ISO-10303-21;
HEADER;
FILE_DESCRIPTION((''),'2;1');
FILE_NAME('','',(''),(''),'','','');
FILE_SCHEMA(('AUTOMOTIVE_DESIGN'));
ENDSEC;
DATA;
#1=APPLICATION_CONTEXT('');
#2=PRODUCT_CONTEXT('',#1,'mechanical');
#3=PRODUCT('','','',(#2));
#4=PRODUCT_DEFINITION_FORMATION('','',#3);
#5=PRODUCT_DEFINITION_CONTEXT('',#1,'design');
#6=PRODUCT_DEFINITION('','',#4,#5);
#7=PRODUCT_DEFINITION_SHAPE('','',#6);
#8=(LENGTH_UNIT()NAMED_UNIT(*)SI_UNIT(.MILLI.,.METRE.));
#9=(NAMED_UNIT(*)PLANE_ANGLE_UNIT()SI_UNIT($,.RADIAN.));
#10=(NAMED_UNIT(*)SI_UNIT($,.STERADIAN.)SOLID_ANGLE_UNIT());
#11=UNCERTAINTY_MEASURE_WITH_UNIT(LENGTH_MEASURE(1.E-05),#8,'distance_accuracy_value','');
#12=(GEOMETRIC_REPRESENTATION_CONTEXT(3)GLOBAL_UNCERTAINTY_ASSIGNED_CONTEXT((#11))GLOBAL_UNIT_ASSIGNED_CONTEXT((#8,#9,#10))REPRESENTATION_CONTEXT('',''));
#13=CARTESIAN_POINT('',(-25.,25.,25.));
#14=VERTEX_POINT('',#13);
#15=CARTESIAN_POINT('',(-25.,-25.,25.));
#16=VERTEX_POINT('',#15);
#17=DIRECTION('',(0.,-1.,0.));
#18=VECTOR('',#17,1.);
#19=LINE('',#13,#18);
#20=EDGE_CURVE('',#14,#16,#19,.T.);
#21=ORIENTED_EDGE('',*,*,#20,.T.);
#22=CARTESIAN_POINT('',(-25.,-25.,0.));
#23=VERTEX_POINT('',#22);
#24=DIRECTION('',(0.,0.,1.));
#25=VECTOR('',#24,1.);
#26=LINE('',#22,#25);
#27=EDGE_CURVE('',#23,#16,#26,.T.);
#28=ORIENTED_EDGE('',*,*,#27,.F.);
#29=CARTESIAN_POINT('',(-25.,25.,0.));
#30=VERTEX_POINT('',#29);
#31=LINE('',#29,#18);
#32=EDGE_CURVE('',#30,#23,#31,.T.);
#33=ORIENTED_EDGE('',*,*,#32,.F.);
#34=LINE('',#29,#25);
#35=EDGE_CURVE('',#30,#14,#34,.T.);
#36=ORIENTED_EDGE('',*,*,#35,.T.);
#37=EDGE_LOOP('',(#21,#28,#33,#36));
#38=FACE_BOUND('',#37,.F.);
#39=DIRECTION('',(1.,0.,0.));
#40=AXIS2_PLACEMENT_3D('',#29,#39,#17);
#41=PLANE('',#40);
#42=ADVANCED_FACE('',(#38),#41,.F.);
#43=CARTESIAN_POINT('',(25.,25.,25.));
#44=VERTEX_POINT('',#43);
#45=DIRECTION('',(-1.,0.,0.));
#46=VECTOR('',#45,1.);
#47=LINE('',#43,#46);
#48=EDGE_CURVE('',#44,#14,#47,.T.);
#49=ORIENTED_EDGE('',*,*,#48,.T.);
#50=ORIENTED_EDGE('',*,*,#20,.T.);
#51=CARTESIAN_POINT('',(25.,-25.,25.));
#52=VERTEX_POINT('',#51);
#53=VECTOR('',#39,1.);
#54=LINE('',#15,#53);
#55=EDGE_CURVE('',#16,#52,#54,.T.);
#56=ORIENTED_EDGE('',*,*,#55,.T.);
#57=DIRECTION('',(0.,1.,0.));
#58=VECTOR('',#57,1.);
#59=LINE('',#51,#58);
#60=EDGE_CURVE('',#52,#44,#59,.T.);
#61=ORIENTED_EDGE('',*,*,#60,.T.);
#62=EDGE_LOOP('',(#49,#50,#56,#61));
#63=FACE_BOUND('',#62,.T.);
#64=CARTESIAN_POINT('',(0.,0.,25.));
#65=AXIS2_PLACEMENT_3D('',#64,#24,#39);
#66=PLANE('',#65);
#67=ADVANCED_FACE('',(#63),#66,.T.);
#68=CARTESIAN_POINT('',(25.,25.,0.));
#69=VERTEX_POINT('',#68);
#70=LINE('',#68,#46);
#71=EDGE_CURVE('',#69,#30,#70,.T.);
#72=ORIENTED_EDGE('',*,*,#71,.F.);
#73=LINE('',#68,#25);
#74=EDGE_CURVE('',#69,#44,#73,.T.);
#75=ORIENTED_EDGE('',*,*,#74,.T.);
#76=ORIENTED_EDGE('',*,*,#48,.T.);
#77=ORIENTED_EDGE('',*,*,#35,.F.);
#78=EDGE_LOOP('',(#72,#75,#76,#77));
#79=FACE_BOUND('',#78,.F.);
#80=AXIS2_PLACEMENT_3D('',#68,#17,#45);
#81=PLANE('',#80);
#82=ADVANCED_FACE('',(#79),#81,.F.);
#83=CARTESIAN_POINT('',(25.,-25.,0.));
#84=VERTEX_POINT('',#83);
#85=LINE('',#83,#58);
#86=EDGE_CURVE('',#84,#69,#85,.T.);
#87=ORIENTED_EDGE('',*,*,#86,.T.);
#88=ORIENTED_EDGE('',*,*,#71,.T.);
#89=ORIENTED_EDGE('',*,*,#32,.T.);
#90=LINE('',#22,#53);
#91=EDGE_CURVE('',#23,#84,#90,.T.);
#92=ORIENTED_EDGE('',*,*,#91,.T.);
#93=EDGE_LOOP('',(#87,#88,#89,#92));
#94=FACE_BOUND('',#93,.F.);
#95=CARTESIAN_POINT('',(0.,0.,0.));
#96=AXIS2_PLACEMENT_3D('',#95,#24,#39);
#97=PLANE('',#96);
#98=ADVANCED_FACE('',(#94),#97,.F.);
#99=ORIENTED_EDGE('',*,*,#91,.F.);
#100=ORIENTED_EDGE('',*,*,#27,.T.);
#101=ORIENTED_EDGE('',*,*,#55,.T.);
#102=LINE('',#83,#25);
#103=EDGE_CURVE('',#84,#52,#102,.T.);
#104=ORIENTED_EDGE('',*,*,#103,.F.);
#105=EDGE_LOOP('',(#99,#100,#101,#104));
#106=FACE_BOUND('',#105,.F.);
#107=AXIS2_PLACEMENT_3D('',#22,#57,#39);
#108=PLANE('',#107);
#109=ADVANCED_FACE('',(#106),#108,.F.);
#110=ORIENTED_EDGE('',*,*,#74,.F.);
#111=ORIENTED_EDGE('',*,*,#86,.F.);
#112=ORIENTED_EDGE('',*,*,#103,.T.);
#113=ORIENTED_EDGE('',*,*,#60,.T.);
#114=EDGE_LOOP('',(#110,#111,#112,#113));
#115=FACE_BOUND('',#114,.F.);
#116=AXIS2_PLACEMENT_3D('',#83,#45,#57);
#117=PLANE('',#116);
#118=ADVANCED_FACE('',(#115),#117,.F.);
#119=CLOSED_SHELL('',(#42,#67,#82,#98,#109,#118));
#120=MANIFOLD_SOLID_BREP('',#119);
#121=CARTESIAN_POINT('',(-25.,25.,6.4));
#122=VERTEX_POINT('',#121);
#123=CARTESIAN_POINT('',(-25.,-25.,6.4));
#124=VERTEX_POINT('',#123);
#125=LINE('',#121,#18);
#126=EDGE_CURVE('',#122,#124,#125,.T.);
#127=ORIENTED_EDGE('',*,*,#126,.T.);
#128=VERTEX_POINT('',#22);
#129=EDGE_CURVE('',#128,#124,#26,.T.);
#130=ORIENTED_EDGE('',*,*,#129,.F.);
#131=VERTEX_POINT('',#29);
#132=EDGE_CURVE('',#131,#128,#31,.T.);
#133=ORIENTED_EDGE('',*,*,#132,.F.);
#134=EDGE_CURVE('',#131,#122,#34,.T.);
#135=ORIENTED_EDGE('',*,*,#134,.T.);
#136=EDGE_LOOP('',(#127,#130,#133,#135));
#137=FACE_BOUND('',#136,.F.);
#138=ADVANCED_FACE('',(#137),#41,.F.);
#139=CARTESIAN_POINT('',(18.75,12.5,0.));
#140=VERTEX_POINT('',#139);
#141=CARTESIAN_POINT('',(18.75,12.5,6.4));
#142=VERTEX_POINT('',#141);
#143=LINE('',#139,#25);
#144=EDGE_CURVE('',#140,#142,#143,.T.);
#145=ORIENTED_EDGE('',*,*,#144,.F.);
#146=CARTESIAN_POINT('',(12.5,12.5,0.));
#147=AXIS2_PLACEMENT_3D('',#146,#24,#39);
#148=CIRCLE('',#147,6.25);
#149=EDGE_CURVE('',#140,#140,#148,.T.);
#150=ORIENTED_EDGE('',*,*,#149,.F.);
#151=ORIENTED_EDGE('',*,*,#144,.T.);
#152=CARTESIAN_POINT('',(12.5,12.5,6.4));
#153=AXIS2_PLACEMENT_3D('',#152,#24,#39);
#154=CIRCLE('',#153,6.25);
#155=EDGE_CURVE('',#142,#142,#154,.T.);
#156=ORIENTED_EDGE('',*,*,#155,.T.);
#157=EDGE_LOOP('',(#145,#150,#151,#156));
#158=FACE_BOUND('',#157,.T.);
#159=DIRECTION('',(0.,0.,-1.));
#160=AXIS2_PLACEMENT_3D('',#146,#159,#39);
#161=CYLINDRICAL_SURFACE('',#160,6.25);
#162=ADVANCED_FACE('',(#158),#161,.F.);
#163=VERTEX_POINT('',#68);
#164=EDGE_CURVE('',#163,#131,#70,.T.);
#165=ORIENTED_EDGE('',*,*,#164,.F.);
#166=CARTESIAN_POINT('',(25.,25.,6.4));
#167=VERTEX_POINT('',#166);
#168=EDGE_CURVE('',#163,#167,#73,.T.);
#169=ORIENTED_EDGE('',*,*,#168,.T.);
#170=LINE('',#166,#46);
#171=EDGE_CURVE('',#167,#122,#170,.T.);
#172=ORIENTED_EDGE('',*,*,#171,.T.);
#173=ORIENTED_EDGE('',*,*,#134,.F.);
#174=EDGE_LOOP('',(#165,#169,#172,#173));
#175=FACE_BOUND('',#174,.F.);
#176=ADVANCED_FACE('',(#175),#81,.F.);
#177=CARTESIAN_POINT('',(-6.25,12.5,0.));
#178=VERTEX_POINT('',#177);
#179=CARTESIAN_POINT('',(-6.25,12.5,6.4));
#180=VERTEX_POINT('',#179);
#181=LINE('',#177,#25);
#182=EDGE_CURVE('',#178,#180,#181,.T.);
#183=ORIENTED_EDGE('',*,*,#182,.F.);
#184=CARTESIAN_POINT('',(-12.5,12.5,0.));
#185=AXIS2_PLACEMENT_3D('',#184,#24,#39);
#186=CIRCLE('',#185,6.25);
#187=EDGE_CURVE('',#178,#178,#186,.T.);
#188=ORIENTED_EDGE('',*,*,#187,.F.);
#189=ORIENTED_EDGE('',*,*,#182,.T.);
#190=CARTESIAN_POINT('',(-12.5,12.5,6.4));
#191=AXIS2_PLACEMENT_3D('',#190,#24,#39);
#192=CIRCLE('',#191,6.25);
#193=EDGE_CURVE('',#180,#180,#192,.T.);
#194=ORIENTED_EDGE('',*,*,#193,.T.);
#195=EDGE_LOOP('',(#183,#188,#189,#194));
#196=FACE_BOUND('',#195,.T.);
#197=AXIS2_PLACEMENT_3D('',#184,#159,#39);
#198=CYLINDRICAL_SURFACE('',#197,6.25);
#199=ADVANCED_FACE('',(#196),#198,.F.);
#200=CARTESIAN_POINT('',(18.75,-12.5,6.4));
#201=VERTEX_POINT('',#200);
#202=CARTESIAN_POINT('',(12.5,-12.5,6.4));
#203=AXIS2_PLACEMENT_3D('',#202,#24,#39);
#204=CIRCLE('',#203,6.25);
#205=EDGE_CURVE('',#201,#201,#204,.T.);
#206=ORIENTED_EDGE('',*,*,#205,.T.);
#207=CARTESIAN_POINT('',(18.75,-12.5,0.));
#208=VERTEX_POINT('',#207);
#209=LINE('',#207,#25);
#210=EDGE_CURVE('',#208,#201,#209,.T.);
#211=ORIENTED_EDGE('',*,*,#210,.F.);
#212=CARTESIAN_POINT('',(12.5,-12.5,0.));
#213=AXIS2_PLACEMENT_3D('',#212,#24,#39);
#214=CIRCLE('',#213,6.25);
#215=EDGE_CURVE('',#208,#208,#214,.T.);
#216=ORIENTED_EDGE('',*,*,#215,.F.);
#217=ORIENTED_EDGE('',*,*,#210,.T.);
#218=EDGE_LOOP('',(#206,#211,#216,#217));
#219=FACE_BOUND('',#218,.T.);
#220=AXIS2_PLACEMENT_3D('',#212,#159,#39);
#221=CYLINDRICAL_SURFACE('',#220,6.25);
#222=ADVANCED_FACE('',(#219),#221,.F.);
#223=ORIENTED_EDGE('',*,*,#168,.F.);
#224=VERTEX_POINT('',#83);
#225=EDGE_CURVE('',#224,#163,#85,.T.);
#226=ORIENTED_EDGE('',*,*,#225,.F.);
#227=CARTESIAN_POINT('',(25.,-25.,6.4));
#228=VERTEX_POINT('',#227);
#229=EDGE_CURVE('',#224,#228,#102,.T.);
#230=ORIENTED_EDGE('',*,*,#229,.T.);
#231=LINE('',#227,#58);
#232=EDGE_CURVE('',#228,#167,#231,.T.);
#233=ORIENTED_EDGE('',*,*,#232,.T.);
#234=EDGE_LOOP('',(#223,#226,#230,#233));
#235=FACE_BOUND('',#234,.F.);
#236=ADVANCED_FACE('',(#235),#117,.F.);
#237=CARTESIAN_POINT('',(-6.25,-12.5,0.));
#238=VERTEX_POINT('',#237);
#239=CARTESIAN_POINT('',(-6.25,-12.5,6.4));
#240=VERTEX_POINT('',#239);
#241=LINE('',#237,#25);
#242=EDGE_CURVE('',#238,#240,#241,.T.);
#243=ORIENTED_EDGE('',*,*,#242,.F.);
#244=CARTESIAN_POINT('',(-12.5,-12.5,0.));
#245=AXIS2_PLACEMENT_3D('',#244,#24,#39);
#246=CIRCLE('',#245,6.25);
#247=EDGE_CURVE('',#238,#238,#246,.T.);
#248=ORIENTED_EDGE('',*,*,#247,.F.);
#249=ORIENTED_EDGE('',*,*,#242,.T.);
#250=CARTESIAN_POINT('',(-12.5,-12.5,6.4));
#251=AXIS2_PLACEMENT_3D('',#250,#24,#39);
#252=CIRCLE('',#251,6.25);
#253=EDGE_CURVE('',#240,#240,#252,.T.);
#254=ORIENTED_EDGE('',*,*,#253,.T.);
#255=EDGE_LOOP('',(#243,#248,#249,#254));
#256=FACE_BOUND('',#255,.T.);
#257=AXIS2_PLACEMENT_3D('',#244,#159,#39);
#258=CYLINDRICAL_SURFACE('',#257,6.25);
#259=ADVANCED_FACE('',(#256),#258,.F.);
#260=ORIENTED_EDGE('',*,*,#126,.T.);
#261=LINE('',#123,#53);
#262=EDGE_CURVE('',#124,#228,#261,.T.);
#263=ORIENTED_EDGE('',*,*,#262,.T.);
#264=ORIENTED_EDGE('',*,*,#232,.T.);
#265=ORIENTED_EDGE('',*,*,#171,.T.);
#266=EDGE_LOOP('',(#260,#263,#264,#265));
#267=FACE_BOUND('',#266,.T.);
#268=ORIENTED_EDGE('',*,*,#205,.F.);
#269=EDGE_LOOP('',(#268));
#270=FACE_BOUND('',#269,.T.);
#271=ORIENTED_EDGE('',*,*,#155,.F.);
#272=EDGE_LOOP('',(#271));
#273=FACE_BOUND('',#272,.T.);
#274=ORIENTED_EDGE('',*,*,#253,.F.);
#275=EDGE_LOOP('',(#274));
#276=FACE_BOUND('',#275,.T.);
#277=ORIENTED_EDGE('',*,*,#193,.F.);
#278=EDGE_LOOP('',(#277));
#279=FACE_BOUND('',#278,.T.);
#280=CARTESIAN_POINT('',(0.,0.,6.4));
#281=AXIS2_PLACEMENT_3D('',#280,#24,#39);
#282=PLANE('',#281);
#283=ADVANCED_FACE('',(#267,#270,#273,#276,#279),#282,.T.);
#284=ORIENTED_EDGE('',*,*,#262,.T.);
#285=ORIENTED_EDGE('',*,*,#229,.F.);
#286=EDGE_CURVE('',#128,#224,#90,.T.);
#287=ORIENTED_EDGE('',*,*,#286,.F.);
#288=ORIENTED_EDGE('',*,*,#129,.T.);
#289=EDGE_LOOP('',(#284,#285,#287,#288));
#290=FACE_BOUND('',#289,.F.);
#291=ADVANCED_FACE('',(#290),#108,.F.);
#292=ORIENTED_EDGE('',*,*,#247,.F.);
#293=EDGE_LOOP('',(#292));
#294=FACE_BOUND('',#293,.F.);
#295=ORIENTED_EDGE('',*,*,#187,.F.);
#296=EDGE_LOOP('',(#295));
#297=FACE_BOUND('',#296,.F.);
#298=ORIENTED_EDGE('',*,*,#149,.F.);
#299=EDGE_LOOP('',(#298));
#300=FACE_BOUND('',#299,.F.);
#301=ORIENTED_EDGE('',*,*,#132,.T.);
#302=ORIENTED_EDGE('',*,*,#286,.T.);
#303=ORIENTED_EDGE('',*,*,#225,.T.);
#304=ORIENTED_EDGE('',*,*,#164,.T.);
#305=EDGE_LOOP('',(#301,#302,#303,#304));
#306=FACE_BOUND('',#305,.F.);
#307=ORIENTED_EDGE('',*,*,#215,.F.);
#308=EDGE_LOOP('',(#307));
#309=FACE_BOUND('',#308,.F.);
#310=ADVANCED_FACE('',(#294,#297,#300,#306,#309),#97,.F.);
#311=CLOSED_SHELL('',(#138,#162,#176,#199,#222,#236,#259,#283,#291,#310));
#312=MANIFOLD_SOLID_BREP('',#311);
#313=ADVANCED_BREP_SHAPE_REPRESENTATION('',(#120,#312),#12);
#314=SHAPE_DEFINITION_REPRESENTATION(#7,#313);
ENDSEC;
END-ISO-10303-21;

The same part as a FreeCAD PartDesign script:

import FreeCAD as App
import Part
import Sketcher

V = App.Vector


def add_polygon(sketch, points):
    """Adds a closed chain of lines whose ends are joined by coincident constraints."""
    first, n = sketch.GeometryCount, len(points)
    for a, b in zip(points, points[1:] + points[:1]):
        sketch.addGeometry(Part.LineSegment(App.Vector(*a, 0), App.Vector(*b, 0)), False)
    for i in range(n):
        sketch.addConstraint(Sketcher.Constraint("Coincident", first + i, 2, first + (i + 1) % n, 1))

doc = App.newDocument("Part")
body = doc.addObject("PartDesign::Body", "Body")

sketch1 = body.newObject("Sketcher::SketchObject", "Sketch")
sketch1.AttachmentSupport = (doc.getObject("XY_Plane"), [""])
sketch1.MapMode = "FlatFace"
add_polygon(sketch1, [(25, 25), (-25, 25), (-25, -25), (25, -25)])
sketch1.addGeometry(Part.Circle(V(-12, -12, 0), V(0, 0, 1), 6), False)
sketch1.addGeometry(Part.Circle(V(12, -12, 0), V(0, 0, 1), 6), False)
sketch1.addGeometry(Part.Circle(V(-12, 12, 0), V(0, 0, 1), 6), False)
sketch1.addGeometry(Part.Circle(V(12, 12, 0), V(0, 0, 1), 6), False)
sketch1.addConstraint([
    Sketcher.Constraint("Horizontal", 0),
    Sketcher.Constraint("Vertical", 1),
    Sketcher.Constraint("Horizontal", 2),
    Sketcher.Constraint("Vertical", 3),
    Sketcher.Constraint("Equal", 4, 5),
    Sketcher.Constraint("Equal", 5, 6),
    Sketcher.Constraint("Equal", 6, 7),
    Sketcher.Constraint("Symmetric", 5, 3, 6, 3, -1, 1),
    Sketcher.Constraint("Symmetric", 4, 3, 7, 3, -1, 1),
    Sketcher.Constraint("Symmetric", 0, 2, 2, 2, -1, 1),
    Sketcher.Constraint("Symmetric", 4, 3, 5, 3, -2),
    Sketcher.Constraint("Equal", 2, 1),
    Sketcher.Constraint("Diameter", 4, 12.5),
    Sketcher.Constraint("DistanceX", 0, 2, 0, 1, 50.0),
    Sketcher.Constraint("DistanceX", 4, 3, 5, 3, 25.0),
    Sketcher.Constraint("DistanceY", 4, 3, 6, 3, 25.0),
])
pad1 = body.newObject("PartDesign::Pad", "Pad")
pad1.Profile = sketch1
pad1.Length = 6.4
body2 = doc.addObject("PartDesign::Body", "Body001")

sketch2 = body2.newObject("Sketcher::SketchObject", "Sketch001")
sketch2.AttachmentSupport = (doc.getObject("XY_Plane001"), [""])
sketch2.MapMode = "FlatFace"
add_polygon(sketch2, [(25, 25), (-25, 25), (-25, -25), (25, -25)])
sketch2.addConstraint([
    Sketcher.Constraint("Horizontal", 0),
    Sketcher.Constraint("Vertical", 1),
    Sketcher.Constraint("Horizontal", 2),
    Sketcher.Constraint("Vertical", 3),
    Sketcher.Constraint("Symmetric", 0, 2, 2, 2, -1, 1),
    Sketcher.Constraint("Equal", 2, 1),
    Sketcher.Constraint("DistanceX", 0, 2, 0, 1, 50.0),
])
pad2 = body2.newObject("PartDesign::Pad", "Pad001")
pad2.Profile = sketch2
pad2.Length = 25

doc.recompute()
